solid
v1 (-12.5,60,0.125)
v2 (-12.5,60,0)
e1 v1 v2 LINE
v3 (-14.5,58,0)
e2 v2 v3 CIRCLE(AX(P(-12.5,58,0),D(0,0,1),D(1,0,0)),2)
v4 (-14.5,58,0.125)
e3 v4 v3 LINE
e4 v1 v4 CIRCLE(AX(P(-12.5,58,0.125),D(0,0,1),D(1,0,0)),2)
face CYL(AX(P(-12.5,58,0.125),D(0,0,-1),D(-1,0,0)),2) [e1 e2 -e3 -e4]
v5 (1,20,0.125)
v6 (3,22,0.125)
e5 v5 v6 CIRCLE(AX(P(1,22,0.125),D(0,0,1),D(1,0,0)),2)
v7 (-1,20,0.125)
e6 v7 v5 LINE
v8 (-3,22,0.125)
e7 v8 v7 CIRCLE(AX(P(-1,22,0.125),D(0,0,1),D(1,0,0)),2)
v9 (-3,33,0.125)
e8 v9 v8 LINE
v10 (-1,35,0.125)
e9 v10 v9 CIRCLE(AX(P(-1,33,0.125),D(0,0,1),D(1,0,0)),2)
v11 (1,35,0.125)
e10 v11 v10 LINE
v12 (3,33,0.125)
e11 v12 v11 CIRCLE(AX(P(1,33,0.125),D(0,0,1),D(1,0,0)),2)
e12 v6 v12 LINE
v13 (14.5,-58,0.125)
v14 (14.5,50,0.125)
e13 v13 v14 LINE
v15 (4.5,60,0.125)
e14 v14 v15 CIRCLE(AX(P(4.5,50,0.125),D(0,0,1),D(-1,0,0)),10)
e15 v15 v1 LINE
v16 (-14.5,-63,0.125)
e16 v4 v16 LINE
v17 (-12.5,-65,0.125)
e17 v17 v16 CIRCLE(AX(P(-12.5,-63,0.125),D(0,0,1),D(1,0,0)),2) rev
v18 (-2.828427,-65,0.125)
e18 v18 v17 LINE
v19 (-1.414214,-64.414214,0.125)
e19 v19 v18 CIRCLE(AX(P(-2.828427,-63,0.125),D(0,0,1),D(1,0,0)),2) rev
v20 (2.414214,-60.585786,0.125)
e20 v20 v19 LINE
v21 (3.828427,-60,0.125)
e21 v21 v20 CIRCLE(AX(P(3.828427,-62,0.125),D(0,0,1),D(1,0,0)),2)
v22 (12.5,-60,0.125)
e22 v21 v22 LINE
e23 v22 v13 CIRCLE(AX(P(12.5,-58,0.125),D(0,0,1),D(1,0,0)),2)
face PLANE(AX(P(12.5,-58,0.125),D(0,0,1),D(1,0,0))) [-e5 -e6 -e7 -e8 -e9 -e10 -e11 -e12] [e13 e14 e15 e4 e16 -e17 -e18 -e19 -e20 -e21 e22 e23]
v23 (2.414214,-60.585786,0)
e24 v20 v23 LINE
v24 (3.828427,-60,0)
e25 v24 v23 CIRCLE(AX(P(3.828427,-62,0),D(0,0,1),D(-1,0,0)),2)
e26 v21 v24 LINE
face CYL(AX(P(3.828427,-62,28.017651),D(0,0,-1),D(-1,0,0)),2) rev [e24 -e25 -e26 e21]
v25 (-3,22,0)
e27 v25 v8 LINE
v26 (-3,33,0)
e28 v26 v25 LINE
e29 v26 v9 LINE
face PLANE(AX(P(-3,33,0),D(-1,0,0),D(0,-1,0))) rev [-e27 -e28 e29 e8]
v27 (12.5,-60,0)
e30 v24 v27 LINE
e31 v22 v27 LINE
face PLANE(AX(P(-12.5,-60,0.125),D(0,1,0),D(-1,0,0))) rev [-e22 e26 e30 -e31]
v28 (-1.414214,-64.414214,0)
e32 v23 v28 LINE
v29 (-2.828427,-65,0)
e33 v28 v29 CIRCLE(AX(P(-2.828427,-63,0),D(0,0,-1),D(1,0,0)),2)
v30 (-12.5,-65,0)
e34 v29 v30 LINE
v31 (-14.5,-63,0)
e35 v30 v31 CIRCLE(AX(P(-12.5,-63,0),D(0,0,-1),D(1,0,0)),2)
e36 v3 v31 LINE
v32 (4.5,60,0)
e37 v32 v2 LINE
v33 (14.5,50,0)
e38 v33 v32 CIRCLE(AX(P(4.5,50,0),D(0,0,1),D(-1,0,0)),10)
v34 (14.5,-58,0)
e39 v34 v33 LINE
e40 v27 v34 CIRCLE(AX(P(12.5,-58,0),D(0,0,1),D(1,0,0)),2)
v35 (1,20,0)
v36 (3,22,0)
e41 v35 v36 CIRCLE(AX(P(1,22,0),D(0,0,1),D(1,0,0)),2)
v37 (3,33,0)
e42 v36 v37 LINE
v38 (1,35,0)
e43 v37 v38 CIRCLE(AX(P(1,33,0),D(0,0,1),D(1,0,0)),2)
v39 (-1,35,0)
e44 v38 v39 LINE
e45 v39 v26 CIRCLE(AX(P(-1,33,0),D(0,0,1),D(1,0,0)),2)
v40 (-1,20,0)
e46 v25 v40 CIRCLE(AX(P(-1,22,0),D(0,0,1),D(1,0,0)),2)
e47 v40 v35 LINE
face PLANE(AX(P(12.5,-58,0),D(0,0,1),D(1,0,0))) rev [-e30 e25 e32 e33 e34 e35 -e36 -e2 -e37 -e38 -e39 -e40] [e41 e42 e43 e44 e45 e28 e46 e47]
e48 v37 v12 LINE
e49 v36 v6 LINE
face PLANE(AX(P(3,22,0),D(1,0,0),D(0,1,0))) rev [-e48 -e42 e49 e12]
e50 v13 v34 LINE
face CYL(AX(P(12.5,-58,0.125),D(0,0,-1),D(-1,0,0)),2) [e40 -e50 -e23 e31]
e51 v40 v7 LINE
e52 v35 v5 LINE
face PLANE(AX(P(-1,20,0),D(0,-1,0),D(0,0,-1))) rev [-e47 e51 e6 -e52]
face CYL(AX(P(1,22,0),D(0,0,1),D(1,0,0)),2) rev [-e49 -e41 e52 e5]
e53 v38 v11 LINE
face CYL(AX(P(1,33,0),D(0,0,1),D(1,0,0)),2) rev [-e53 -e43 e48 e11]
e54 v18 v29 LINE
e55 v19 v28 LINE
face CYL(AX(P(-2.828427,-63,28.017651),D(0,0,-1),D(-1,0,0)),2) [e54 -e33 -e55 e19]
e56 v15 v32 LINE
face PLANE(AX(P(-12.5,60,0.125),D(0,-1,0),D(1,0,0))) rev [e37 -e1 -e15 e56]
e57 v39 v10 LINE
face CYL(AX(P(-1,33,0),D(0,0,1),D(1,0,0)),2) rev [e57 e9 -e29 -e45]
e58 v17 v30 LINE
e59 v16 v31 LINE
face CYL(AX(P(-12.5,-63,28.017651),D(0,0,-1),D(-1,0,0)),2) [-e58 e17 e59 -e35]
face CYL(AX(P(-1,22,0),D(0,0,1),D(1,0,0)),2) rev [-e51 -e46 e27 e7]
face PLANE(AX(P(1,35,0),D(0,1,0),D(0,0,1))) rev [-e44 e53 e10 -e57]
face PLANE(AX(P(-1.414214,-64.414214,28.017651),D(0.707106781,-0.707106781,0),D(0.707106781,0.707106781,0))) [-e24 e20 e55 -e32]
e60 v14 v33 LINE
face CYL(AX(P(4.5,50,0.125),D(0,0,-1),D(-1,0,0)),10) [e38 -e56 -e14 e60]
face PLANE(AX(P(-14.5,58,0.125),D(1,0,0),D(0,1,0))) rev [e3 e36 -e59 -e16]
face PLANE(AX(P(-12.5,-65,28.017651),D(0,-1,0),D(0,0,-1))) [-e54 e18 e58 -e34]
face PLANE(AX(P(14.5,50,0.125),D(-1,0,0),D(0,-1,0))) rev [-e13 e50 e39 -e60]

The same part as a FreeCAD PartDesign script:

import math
import FreeCAD as App
import Part
import Sketcher

V = App.Vector
Q = App.Units.Quantity

doc = App.newDocument("Part")
params = doc.addObject("Spreadsheet::Sheet", "Params")
for row, (alias, value) in enumerate([
    ("sketch1_radius", "2 mm"),
    ("sketch1_radius2", "10 mm"),
    ("sketch1_width", "17 mm"),
    ("sketch1_height", "116 mm"),
    ("pad1_length", "0.125 mm"),
    ("sketch2_radius", "2 mm"),
    ("sketch2_width", "27 mm"),
    ("sketch2_height", "5 mm"),
    ("sketch2_height2", "2 mm"),
    ("pad2_length", "0.125 mm"),
    ("sketch3_radius", "2 mm"),
    ("sketch3_width", "2 mm"),
    ("sketch3_height", "11 mm"),
], start=1):
    params.set(f"A{row}", alias)
    params.set(f"B{row}", "=" + value)
    params.setAlias(f"B{row}", alias)

body = doc.addObject("PartDesign::Body", "Body")

# Sketch on XY plane
sketch1 = body.newObject("Sketcher::SketchObject", "Sketch")
sketch1.AttachmentSupport = (doc.getObject("XY_Plane"), [""])
sketch1.MapMode = "FlatFace"
sketch1.addGeometry(Part.LineSegment(V(4.5, 60, 0), V(-12.5, 60, 0)), False)
sketch1.addGeometry(Part.ArcOfCircle(Part.Circle(V(-12.5, 58, 0), V(0, 0, 1), 2), math.radians(90), math.radians(180)), False)
sketch1.addGeometry(Part.LineSegment(V(-14.5, 58, 0), V(-14.5, -58, 0)), False)
sketch1.addGeometry(Part.ArcOfCircle(Part.Circle(V(-12.5, -58, 0), V(0, 0, 1), 2), math.radians(-180), math.radians(-90)), False)
sketch1.addGeometry(Part.LineSegment(V(-12.5, -60, 0), V(12.5, -60, 0)), False)
sketch1.addGeometry(Part.ArcOfCircle(Part.Circle(V(12.5, -58, 0), V(0, 0, 1), 2), math.radians(-90), math.radians(0)), False)
sketch1.addGeometry(Part.LineSegment(V(14.5, -58, 0), V(14.5, 50, 0)), False)
sketch1.addGeometry(Part.ArcOfCircle(Part.Circle(V(4.5, 50, 0), V(0, 0, 1), 10), math.radians(0), math.radians(90)), False)
sketch1.addConstraint(Sketcher.Constraint("Tangent", 0, 2, 1, 1))
sketch1.addConstraint(Sketcher.Constraint("Tangent", 1, 2, 2, 1))
sketch1.addConstraint(Sketcher.Constraint("Tangent", 2, 2, 3, 1))
sketch1.addConstraint(Sketcher.Constraint("Tangent", 3, 2, 4, 1))
sketch1.addConstraint(Sketcher.Constraint("Tangent", 4, 2, 5, 1))
sketch1.addConstraint(Sketcher.Constraint("Tangent", 5, 2, 6, 1))
sketch1.addConstraint(Sketcher.Constraint("Tangent", 6, 2, 7, 1))
sketch1.addConstraint(Sketcher.Constraint("Tangent", 7, 2, 0, 1))
sketch1.addConstraint(Sketcher.Constraint("Horizontal", 0))
sketch1.addConstraint(Sketcher.Constraint("Vertical", 2))
sketch1.addConstraint(Sketcher.Constraint("Horizontal", 4))
sketch1.addConstraint(Sketcher.Constraint("Vertical", 6))
sketch1.addConstraint(Sketcher.Constraint("Equal", 1, 3))
sketch1.addConstraint(Sketcher.Constraint("Equal", 3, 5))
sketch1.addConstraint(Sketcher.Constraint("Symmetric", 1, 3, 5, 3, -1, 1))
sketch1.addConstraint(Sketcher.Constraint("Radius", 1, Q("2 mm")))
sketch1.addConstraint(Sketcher.Constraint("Radius", 7, Q("10 mm")))
sketch1.addConstraint(Sketcher.Constraint("DistanceX", 0, 2, 0, 1, Q("17 mm")))
sketch1.addConstraint(Sketcher.Constraint("DistanceY", 2, 2, 2, 1, Q("116 mm")))
sketch1.setExpression("Constraints[15]", "Params.sketch1_radius")
sketch1.setExpression("Constraints[16]", "Params.sketch1_radius2")
sketch1.setExpression("Constraints[17]", "Params.sketch1_width")
sketch1.setExpression("Constraints[18]", "Params.sketch1_height")
pad1 = body.newObject("PartDesign::Pad", "Pad")
pad1.Profile = sketch1
pad1.setExpression("Length", "Params.pad1_length")

# Sketch on XY plane
sketch2 = body.newObject("Sketcher::SketchObject", "Sketch001")
sketch2.AttachmentSupport = (doc.getObject("XY_Plane"), [""])
sketch2.MapMode = "FlatFace"
sketch2.addGeometry(Part.LineSegment(V(-14.5, -63, 0), V(-14.5, -58, 0)), False)
sketch2.addGeometry(Part.LineSegment(V(-14.5, -58, 0), V(12.5, -58, 0)), False)
sketch2.addGeometry(Part.LineSegment(V(12.5, -58, 0), V(12.5, -60, 0)), False)
sketch2.addGeometry(Part.LineSegment(V(12.5, -60, 0), V(3.8, -60, 0)), False)
sketch2.addGeometry(Part.ArcOfCircle(Part.Circle(V(3.8, -62, 0), V(0, 0, 1), 2), math.radians(90), math.radians(135)), False)
sketch2.addGeometry(Part.LineSegment(V(2.4, -60.6, 0), V(-1.4, -64.4, 0)), False)
sketch2.addGeometry(Part.ArcOfCircle(Part.Circle(V(-2.8, -63, 0), V(0, 0, 1), 2), math.radians(-90), math.radians(-45)), False)
sketch2.addGeometry(Part.LineSegment(V(-2.8, -65, 0), V(-12.5, -65, 0)), False)
sketch2.addGeometry(Part.ArcOfCircle(Part.Circle(V(-12.5, -63, 0), V(0, 0, 1), 2), math.radians(-180), math.radians(-90)), False)
sketch2.addConstraint(Sketcher.Constraint("Coincident", 0, 2, 1, 1))
sketch2.addConstraint(Sketcher.Constraint("Coincident", 1, 2, 2, 1))
sketch2.addConstraint(Sketcher.Constraint("Coincident", 2, 2, 3, 1))
sketch2.addConstraint(Sketcher.Constraint("Tangent", 3, 2, 4, 1))
sketch2.addConstraint(Sketcher.Constraint("Tangent", 4, 2, 5, 1))
sketch2.addConstraint(Sketcher.Constraint("Tangent", 5, 2, 6, 2))
sketch2.addConstraint(Sketcher.Constraint("Tangent", 6, 1, 7, 1))
sketch2.addConstraint(Sketcher.Constraint("Tangent", 7, 2, 8, 2))
sketch2.addConstraint(Sketcher.Constraint("Tangent", 8, 1, 0, 1))
sketch2.addConstraint(Sketcher.Constraint("Vertical", 0))
sketch2.addConstraint(Sketcher.Constraint("Horizontal", 1))
sketch2.addConstraint(Sketcher.Constraint("Vertical", 2))
sketch2.addConstraint(Sketcher.Constraint("Horizontal", 3))
sketch2.addConstraint(Sketcher.Constraint("Horizontal", 7))
sketch2.addConstraint(Sketcher.Constraint("Equal", 4, 6))
sketch2.addConstraint(Sketcher.Constraint("Equal", 6, 8))
sketch2.addConstraint(Sketcher.Constraint("Radius", 4, Q("2 mm")))
sketch2.addConstraint(Sketcher.Constraint("DistanceX", 1, 1, 1, 2, Q("27 mm")))
sketch2.addConstraint(Sketcher.Constraint("DistanceY", 0, 1, 0, 2, Q("5 mm")))
sketch2.addConstraint(Sketcher.Constraint("DistanceY", 2, 2, 2, 1, Q("2 mm")))
sketch2.addConstraint(Sketcher.Constraint("Angle", 5, Q("-135 deg")))
sketch2.addConstraint(Sketcher.Constraint("DistanceY", 4, 3, -1, 1, Q("62 mm")))
sketch2.addConstraint(Sketcher.Constraint("DistanceX", 8, 3, -1, 1, Q("12.5 mm")))
sketch2.addConstraint(Sketcher.Constraint("DistanceX", 3, 2, 3, 1, Q("8.671573 mm")))
sketch2.setExpression("Constraints[16]", "Params.sketch2_radius")
sketch2.setExpression("Constraints[17]", "Params.sketch2_width")
sketch2.setExpression("Constraints[18]", "Params.sketch2_height")
sketch2.setExpression("Constraints[19]", "Params.sketch2_height2")
pad2 = body.newObject("PartDesign::Pad", "Pad001")
pad2.Profile = sketch2
pad2.setExpression("Length", "Params.pad2_length")

# Sketch on XY plane
sketch3 = body.newObject("Sketcher::SketchObject", "Sketch002")
sketch3.AttachmentSupport = (doc.getObject("XY_Plane"), [""])
sketch3.MapMode = "FlatFace"
sketch3.AttachmentOffset = App.Placement(V(0, 0, 0.125), App.Rotation())
sketch3.addGeometry(Part.LineSegment(V(-1, 20, 0), V(1, 20, 0)), False)
sketch3.addGeometry(Part.ArcOfCircle(Part.Circle(V(1, 22, 0), V(0, 0, 1), 2), math.radians(-90), math.radians(0)), False)
sketch3.addGeometry(Part.LineSegment(V(3, 22, 0), V(3, 33, 0)), False)
sketch3.addGeometry(Part.ArcOfCircle(Part.Circle(V(1, 33, 0), V(0, 0, 1), 2), math.radians(0), math.radians(90)), False)
sketch3.addGeometry(Part.LineSegment(V(1, 35, 0), V(-1, 35, 0)), False)
sketch3.addGeometry(Part.ArcOfCircle(Part.Circle(V(-1, 33, 0), V(0, 0, 1), 2), math.radians(90), math.radians(180)), False)
sketch3.addGeometry(Part.LineSegment(V(-3, 33, 0), V(-3, 22, 0)), False)
sketch3.addGeometry(Part.ArcOfCircle(Part.Circle(V(-1, 22, 0), V(0, 0, 1), 2), math.radians(-180), math.radians(-90)), False)
sketch3.addConstraint(Sketcher.Constraint("Tangent", 0, 2, 1, 1))
sketch3.addConstraint(Sketcher.Constraint("Tangent", 1, 2, 2, 1))
sketch3.addConstraint(Sketcher.Constraint("Tangent", 2, 2, 3, 1))
sketch3.addConstraint(Sketcher.Constraint("Tangent", 3, 2, 4, 1))
sketch3.addConstraint(Sketcher.Constraint("Tangent", 4, 2, 5, 1))
sketch3.addConstraint(Sketcher.Constraint("Tangent", 5, 2, 6, 1))
sketch3.addConstraint(Sketcher.Constraint("Tangent", 6, 2, 7, 1))
sketch3.addConstraint(Sketcher.Constraint("Tangent", 7, 2, 0, 1))
sketch3.addConstraint(Sketcher.Constraint("Horizontal", 0))
sketch3.addConstraint(Sketcher.Constraint("Vertical", 2))
sketch3.addConstraint(Sketcher.Constraint("Horizontal", 4))
sketch3.addConstraint(Sketcher.Constraint("Vertical", 6))
sketch3.addConstraint(Sketcher.Constraint("Equal", 1, 3))
sketch3.addConstraint(Sketcher.Constraint("Equal", 3, 5))
sketch3.addConstraint(Sketcher.Constraint("Equal", 5, 7))
sketch3.addConstraint(Sketcher.Constraint("Radius", 1, Q("2 mm")))
sketch3.addConstraint(Sketcher.Constraint("DistanceX", 0, 1, 0, 2, Q("2 mm")))
sketch3.addConstraint(Sketcher.Constraint("DistanceY", 2, 1, 2, 2, Q("11 mm")))
sketch3.addConstraint(Sketcher.Constraint("DistanceX", -1, 1, 1, 3, Q("1 mm")))
sketch3.addConstraint(Sketcher.Constraint("DistanceY", -1, 1, 1, 3, Q("22 mm")))
sketch3.setExpression("Constraints[15]", "Params.sketch3_radius")
sketch3.setExpression("Constraints[16]", "Params.sketch3_width")
sketch3.setExpression("Constraints[17]", "Params.sketch3_height")
pocket1 = body.newObject("PartDesign::Pocket", "Pocket")
pocket1.Profile = sketch3
pocket1.Type = "ThroughAll"

doc.recompute()
